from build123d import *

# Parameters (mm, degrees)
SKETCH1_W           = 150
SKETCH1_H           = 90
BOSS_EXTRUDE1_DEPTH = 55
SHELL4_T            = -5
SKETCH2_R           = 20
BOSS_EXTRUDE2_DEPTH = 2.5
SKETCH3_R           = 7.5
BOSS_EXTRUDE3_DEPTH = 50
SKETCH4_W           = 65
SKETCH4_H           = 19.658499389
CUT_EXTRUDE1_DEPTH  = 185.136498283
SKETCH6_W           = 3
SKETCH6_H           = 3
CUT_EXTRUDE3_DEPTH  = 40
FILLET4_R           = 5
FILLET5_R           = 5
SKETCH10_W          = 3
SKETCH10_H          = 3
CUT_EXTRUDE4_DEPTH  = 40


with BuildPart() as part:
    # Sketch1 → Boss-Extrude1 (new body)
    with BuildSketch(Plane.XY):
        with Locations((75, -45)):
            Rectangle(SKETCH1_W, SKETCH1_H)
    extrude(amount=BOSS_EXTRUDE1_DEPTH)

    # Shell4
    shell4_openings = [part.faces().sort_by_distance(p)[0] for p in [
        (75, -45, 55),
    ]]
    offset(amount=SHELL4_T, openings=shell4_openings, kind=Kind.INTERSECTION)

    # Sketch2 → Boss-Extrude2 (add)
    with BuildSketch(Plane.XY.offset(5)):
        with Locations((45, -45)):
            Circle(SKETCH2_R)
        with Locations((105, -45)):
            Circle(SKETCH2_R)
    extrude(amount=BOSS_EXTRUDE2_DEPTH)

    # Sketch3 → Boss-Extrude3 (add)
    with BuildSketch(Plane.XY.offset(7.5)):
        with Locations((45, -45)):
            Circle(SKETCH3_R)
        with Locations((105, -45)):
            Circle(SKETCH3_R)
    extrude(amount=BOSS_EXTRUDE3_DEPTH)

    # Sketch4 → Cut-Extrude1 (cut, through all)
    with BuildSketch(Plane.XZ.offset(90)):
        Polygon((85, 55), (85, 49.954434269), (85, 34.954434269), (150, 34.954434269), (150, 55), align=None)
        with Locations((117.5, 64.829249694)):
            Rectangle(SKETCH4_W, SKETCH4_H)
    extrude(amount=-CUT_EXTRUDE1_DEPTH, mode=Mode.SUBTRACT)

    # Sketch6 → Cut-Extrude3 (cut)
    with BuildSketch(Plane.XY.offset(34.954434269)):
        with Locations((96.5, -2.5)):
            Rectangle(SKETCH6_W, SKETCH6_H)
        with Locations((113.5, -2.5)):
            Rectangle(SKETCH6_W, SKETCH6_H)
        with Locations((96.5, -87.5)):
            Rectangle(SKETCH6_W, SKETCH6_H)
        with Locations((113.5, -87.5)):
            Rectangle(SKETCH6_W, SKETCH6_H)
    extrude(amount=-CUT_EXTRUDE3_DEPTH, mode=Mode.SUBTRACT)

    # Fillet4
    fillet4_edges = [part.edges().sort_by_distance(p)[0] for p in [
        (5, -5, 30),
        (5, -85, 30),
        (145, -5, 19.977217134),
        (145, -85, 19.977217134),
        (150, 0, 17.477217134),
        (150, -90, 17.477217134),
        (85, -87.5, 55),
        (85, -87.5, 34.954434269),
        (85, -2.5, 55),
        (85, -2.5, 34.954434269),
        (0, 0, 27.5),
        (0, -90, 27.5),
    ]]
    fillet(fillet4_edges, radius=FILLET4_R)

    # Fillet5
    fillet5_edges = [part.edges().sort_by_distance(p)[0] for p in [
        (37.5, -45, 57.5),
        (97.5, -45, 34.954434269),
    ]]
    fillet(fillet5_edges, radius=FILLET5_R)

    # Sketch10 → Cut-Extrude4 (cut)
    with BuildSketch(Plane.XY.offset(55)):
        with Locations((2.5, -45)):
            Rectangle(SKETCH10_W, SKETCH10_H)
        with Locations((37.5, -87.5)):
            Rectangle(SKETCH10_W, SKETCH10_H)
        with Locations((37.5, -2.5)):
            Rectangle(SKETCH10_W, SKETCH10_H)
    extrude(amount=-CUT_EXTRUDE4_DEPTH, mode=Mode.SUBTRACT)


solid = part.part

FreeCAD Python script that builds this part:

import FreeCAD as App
import Part
import Sketcher
from FreeCAD import Vector
Q = App.Units.Quantity


def edges_at(feature, points):
    """Names of the edges that pass closest to the given points."""
    edges = feature.Shape.Edges
    near = lambda p: min(range(len(edges)), key=lambda i: edges[i].distToShape(Part.Vertex(*p))[0])
    return sorted({f"Edge{near(p) + 1}" for p in points})


def faces_at(feature, points):
    """Names of the faces that lie closest to the given points."""
    faces = feature.Shape.Faces
    near = lambda p: min(range(len(faces)), key=lambda i: faces[i].distToShape(Part.Vertex(*p))[0])
    return sorted({f"Face{near(p) + 1}" for p in points})

doc = App.newDocument("Part")
body = doc.addObject("PartDesign::Body", "Body")

# Sketch on XY plane
sketch1 = doc.addObject("Sketcher::SketchObject", "Sketch")
body.addObject(sketch1)
sketch1.AttachmentSupport = (doc.XY_Plane, [""])
sketch1.MapMode = "FlatFace"
sketch1.addGeometry([
    Part.LineSegment(Vector(0, 0, 0), Vector(0, -90, 0)),
    Part.LineSegment(Vector(0, -90, 0), Vector(150, -90, 0)),
    Part.LineSegment(Vector(150, -90, 0), Vector(150, 0, 0)),
    Part.LineSegment(Vector(150, 0, 0), Vector(0, 0, 0)),
], False)
sketch1.addConstraint([
    Sketcher.Constraint("Coincident", 0, 2, 1, 1),
    Sketcher.Constraint("Coincident", 1, 2, 2, 1),
    Sketcher.Constraint("Coincident", 2, 2, 3, 1),
    Sketcher.Constraint("Coincident", 3, 2, 0, 1),
    Sketcher.Constraint("Vertical", 0),
    Sketcher.Constraint("Horizontal", 1),
    Sketcher.Constraint("Vertical", 2),
    Sketcher.Constraint("Horizontal", 3),
    Sketcher.Constraint("Coincident", 3, 2, -1, 1),
    Sketcher.Constraint("DistanceX", 1, 1, 1, 2, Q("150 mm")),
    Sketcher.Constraint("DistanceY", 0, 2, 0, 1, Q("90 mm")),
])
pad1 = doc.addObject("PartDesign::Pad", "Pad")
body.addObject(pad1)
pad1.Profile = sketch1
pad1.Length = 55
doc.recompute()

thickness = doc.addObject("PartDesign::Thickness", "Thickness")
body.addObject(thickness)
thickness.Base = (pad1, faces_at(pad1, [(75, -45, 55)]))
thickness.Value = 5
thickness.Reversed = True
thickness.Join = "Intersection"

# Sketch on XY plane
sketch2 = doc.addObject("Sketcher::SketchObject", "Sketch001")
body.addObject(sketch2)
sketch2.AttachmentSupport = (doc.XY_Plane, [""])
sketch2.MapMode = "FlatFace"
sketch2.AttachmentOffset = App.Placement(Vector(0, 0, 5), App.Rotation())
sketch2.addGeometry([
    Part.Circle(Vector(45, -45, 0), Vector(0, 0, 1), 20),
    Part.Circle(Vector(105, -45, 0), Vector(0, 0, 1), 20),
], False)
sketch2.addConstraint([
    Sketcher.Constraint("Equal", 0, 1),
    Sketcher.Constraint("Horizontal", 0, 3, 1, 3),
    Sketcher.Constraint("Diameter", 0, Q("40 mm")),
    Sketcher.Constraint("DistanceX", -1, 1, 0, 3, Q("45 mm")),
    Sketcher.Constraint("DistanceY", 0, 3, -1, 1, Q("45 mm")),
    Sketcher.Constraint("DistanceX", -1, 1, 1, 3, Q("105 mm")),
])
pad2 = doc.addObject("PartDesign::Pad", "Pad001")
body.addObject(pad2)
pad2.Profile = sketch2
pad2.Length = 2.5

# Sketch on XY plane
sketch3 = doc.addObject("Sketcher::SketchObject", "Sketch002")
body.addObject(sketch3)
sketch3.AttachmentSupport = (doc.XY_Plane, [""])
sketch3.MapMode = "FlatFace"
sketch3.AttachmentOffset = App.Placement(Vector(0, 0, 7.5), App.Rotation())
sketch3.addGeometry([
    Part.Circle(Vector(45, -45, 0), Vector(0, 0, 1), 7.5),
    Part.Circle(Vector(105, -45, 0), Vector(0, 0, 1), 7.5),
], False)
sketch3.addConstraint([
    Sketcher.Constraint("Equal", 0, 1),
    Sketcher.Constraint("Horizontal", 0, 3, 1, 3),
    Sketcher.Constraint("Diameter", 0, Q("15 mm")),
    Sketcher.Constraint("DistanceX", -1, 1, 0, 3, Q("45 mm")),
    Sketcher.Constraint("DistanceY", 0, 3, -1, 1, Q("45 mm")),
    Sketcher.Constraint("DistanceX", -1, 1, 1, 3, Q("105 mm")),
])
pad3 = doc.addObject("PartDesign::Pad", "Pad002")
body.addObject(pad3)
pad3.Profile = sketch3
pad3.Length = 50

# Sketch on XZ plane
sketch4 = doc.addObject("Sketcher::SketchObject", "Sketch003")
body.addObject(sketch4)
sketch4.AttachmentSupport = (doc.XZ_Plane, [""])
sketch4.MapMode = "FlatFace"
sketch4.AttachmentOffset = App.Placement(Vector(0, 0, 90), App.Rotation())
sketch4.addGeometry([
    Part.LineSegment(Vector(85, 34.954434, 0), Vector(150, 34.954434, 0)),
    Part.LineSegment(Vector(150, 34.954434, 0), Vector(150, 74.658499, 0)),
    Part.LineSegment(Vector(150, 74.658499, 0), Vector(85, 74.658499, 0)),
    Part.LineSegment(Vector(85, 74.658499, 0), Vector(85, 34.954434, 0)),
], False)
sketch4.addConstraint([
    Sketcher.Constraint("Coincident", 0, 2, 1, 1),
    Sketcher.Constraint("Coincident", 1, 2, 2, 1),
    Sketcher.Constraint("Coincident", 2, 2, 3, 1),
    Sketcher.Constraint("Coincident", 3, 2, 0, 1),
    Sketcher.Constraint("Horizontal", 0),
    Sketcher.Constraint("Vertical", 1),
    Sketcher.Constraint("Horizontal", 2),
    Sketcher.Constraint("Vertical", 3),
    Sketcher.Constraint("DistanceX", 0, 1, 0, 2, Q("65 mm")),
    Sketcher.Constraint("DistanceX", -1, 1, 0, 2, Q("150 mm")),
    Sketcher.Constraint("DistanceY", -1, 1, 1, 2, Q("74.658499 mm")),
    Sketcher.Constraint("DistanceY", 1, 1, 1, 2, Q("39.704065 mm")),
])
pocket1 = doc.addObject("PartDesign::Pocket", "Pocket")
body.addObject(pocket1)
pocket1.Profile = sketch4
pocket1.Type = "ThroughAll"

# Sketch on XY plane
sketch5 = doc.addObject("Sketcher::SketchObject", "Sketch004")
body.addObject(sketch5)
sketch5.AttachmentSupport = (doc.XY_Plane, [""])
sketch5.MapMode = "FlatFace"
sketch5.AttachmentOffset = App.Placement(Vector(0, 0, 34.954434), App.Rotation())
sketch5.addGeometry([
    Part.LineSegment(Vector(95, -1, 0), Vector(95, -4, 0)),  # 0
    Part.LineSegment(Vector(95, -4, 0), Vector(98, -4, 0)),  # 1
    Part.LineSegment(Vector(98, -4, 0), Vector(98, -1, 0)),  # 2
    Part.LineSegment(Vector(98, -1, 0), Vector(95, -1, 0)),  # 3
    Part.LineSegment(Vector(112, -1, 0), Vector(112, -4, 0)),  # 4
    Part.LineSegment(Vector(112, -4, 0), Vector(115, -4, 0)),  # 5
    Part.LineSegment(Vector(115, -4, 0), Vector(115, -1, 0)),  # 6
    Part.LineSegment(Vector(115, -1, 0), Vector(112, -1, 0)),  # 7
    Part.LineSegment(Vector(95, -86, 0), Vector(95, -89, 0)),  # 8
    Part.LineSegment(Vector(95, -89, 0), Vector(98, -89, 0)),  # 9
    Part.LineSegment(Vector(98, -89, 0), Vector(98, -86, 0)),  # 10
    Part.LineSegment(Vector(98, -86, 0), Vector(95, -86, 0)),  # 11
    Part.LineSegment(Vector(112, -86, 0), Vector(112, -89, 0)),  # 12
    Part.LineSegment(Vector(112, -89, 0), Vector(115, -89, 0)),  # 13
    Part.LineSegment(Vector(115, -89, 0), Vector(115, -86, 0)),  # 14
    Part.LineSegment(Vector(115, -86, 0), Vector(112, -86, 0)),  # 15
], False)
sketch5.addConstraint([
    Sketcher.Constraint("Coincident", 0, 2, 1, 1),
    Sketcher.Constraint("Coincident", 1, 2, 2, 1),
    Sketcher.Constraint("Coincident", 2, 2, 3, 1),
    Sketcher.Constraint("Coincident", 3, 2, 0, 1),
    Sketcher.Constraint("Coincident", 4, 2, 5, 1),
    Sketcher.Constraint("Coincident", 5, 2, 6, 1),
    Sketcher.Constraint("Coincident", 6, 2, 7, 1),
    Sketcher.Constraint("Coincident", 7, 2, 4, 1),
    Sketcher.Constraint("Coincident", 8, 2, 9, 1),
    Sketcher.Constraint("Coincident", 9, 2, 10, 1),
    Sketcher.Constraint("Coincident", 10, 2, 11, 1),
    Sketcher.Constraint("Coincident", 11, 2, 8, 1),
    Sketcher.Constraint("Coincident", 12, 2, 13, 1),
    Sketcher.Constraint("Coincident", 13, 2, 14, 1),
    Sketcher.Constraint("Coincident", 14, 2, 15, 1),
    Sketcher.Constraint("Coincident", 15, 2, 12, 1),
    Sketcher.Constraint("Vertical", 0),
    Sketcher.Constraint("Horizontal", 1),
    Sketcher.Constraint("Vertical", 2),
    Sketcher.Constraint("Horizontal", 3),
    Sketcher.Constraint("Vertical", 4),
    Sketcher.Constraint("Horizontal", 5),
    Sketcher.Constraint("Vertical", 6),
    Sketcher.Constraint("Horizontal", 7),
    Sketcher.Constraint("Vertical", 8),
    Sketcher.Constraint("Horizontal", 9),
    Sketcher.Constraint("Vertical", 10),
    Sketcher.Constraint("Horizontal", 11),
    Sketcher.Constraint("Vertical", 12),
    Sketcher.Constraint("Horizontal", 13),
    Sketcher.Constraint("Vertical", 14),
    Sketcher.Constraint("Horizontal", 15),
    Sketcher.Constraint("Horizontal", 1, 2, 4, 2),
    Sketcher.Constraint("Horizontal", 3, 2, 6, 2),
    Sketcher.Constraint("Horizontal", 9, 2, 12, 2),
    Sketcher.Constraint("Horizontal", 11, 2, 14, 2),
    Sketcher.Constraint("Vertical", 3, 2, 8, 2),
    Sketcher.Constraint("Vertical", 2, 2, 9, 2),
    Sketcher.Constraint("Vertical", 7, 2, 12, 2),
    Sketcher.Constraint("Vertical", 6, 2, 13, 2),
    Sketcher.Constraint("Equal", 3, 5),
    Sketcher.Constraint("Equal", 15, 0),
    Sketcher.Constraint("Equal", 6, 8),
    Sketcher.Constraint("DistanceX", 1, 1, 1, 2, Q("3 mm")),
    Sketcher.Constraint("DistanceX", -1, 1, 0, 2, Q("95 mm")),
    Sketcher.Constraint("DistanceY", 0, 2, -1, 1, Q("4 mm")),
    Sketcher.Constraint("DistanceX", -1, 1, 4, 2, Q("112 mm")),
    Sketcher.Constraint("DistanceY", 8, 2, -1, 1, Q("89 mm")),
])
pocket2 = doc.addObject("PartDesign::Pocket", "Pocket001")
body.addObject(pocket2)
pocket2.Profile = sketch5
pocket2.Length = 40
doc.recompute()

fillet = doc.addObject("PartDesign::Fillet", "Fillet")
body.addObject(fillet)
fillet.Base = (pocket2, edges_at(pocket2, [
    (5, -5, 30),
    (5, -85, 30),
    (145, -5, 19.977),
    (145, -85, 19.977),
    (150, 0, 17.477),
    (150, -90, 17.477),
    (85, -87.5, 55),
    (85, -87.5, 34.954),
    (85, -2.5, 55),
    (85, -2.5, 34.954),
    (0, 0, 27.5),
    (0, -90, 27.5),
]))
fillet.Radius = 5
doc.recompute()

fillet2 = doc.addObject("PartDesign::Fillet", "Fillet001")
body.addObject(fillet2)
fillet2.Base = (fillet, edges_at(fillet, [(37.5, -45, 57.5), (97.5, -45, 34.954)]))
fillet2.Radius = 5

# Sketch on XY plane
sketch6 = doc.addObject("Sketcher::SketchObject", "Sketch005")
body.addObject(sketch6)
sketch6.AttachmentSupport = (doc.XY_Plane, [""])
sketch6.MapMode = "FlatFace"
sketch6.AttachmentOffset = App.Placement(Vector(0, 0, 55), App.Rotation())
sketch6.addGeometry([
    Part.LineSegment(Vector(1, -43.5, 0), Vector(1, -46.5, 0)),  # 0
    Part.LineSegment(Vector(1, -46.5, 0), Vector(4, -46.5, 0)),  # 1
    Part.LineSegment(Vector(4, -46.5, 0), Vector(4, -43.5, 0)),  # 2
    Part.LineSegment(Vector(4, -43.5, 0), Vector(1, -43.5, 0)),  # 3
    Part.LineSegment(Vector(36, -86, 0), Vector(36, -89, 0)),  # 4
    Part.LineSegment(Vector(36, -89, 0), Vector(39, -89, 0)),  # 5
    Part.LineSegment(Vector(39, -89, 0), Vector(39, -86, 0)),  # 6
    Part.LineSegment(Vector(39, -86, 0), Vector(36, -86, 0)),  # 7
    Part.LineSegment(Vector(36, -1, 0), Vector(36, -4, 0)),  # 8
    Part.LineSegment(Vector(36, -4, 0), Vector(39, -4, 0)),  # 9
    Part.LineSegment(Vector(39, -4, 0), Vector(39, -1, 0)),  # 10
    Part.LineSegment(Vector(39, -1, 0), Vector(36, -1, 0)),  # 11
], False)
sketch6.addConstraint([
    Sketcher.Constraint("Coincident", 0, 2, 1, 1),
    Sketcher.Constraint("Coincident", 1, 2, 2, 1),
    Sketcher.Constraint("Coincident", 2, 2, 3, 1),
    Sketcher.Constraint("Coincident", 3, 2, 0, 1),
    Sketcher.Constraint("Coincident", 4, 2, 5, 1),
    Sketcher.Constraint("Coincident", 5, 2, 6, 1),
    Sketcher.Constraint("Coincident", 6, 2, 7, 1),
    Sketcher.Constraint("Coincident", 7, 2, 4, 1),
    Sketcher.Constraint("Coincident", 8, 2, 9, 1),
    Sketcher.Constraint("Coincident", 9, 2, 10, 1),
    Sketcher.Constraint("Coincident", 10, 2, 11, 1),
    Sketcher.Constraint("Coincident", 11, 2, 8, 1),
    Sketcher.Constraint("Vertical", 0),
    Sketcher.Constraint("Horizontal", 1),
    Sketcher.Constraint("Vertical", 2),
    Sketcher.Constraint("Horizontal", 3),
    Sketcher.Constraint("Vertical", 4),
    Sketcher.Constraint("Horizontal", 5),
    Sketcher.Constraint("Vertical", 6),
    Sketcher.Constraint("Horizontal", 7),
    Sketcher.Constraint("Vertical", 8),
    Sketcher.Constraint("Horizontal", 9),
    Sketcher.Constraint("Vertical", 10),
    Sketcher.Constraint("Horizontal", 11),
    Sketcher.Constraint("Vertical", 7, 2, 8, 2),
    Sketcher.Constraint("Vertical", 6, 2, 9, 2),
    Sketcher.Constraint("Equal", 3, 5),
    Sketcher.Constraint("Equal", 11, 0),
    Sketcher.Constraint("Equal", 2, 4),
    Sketcher.Constraint("Equal", 6, 8),
    Sketcher.Constraint("DistanceX", 1, 1, 1, 2, Q("3 mm")),
    Sketcher.Constraint("DistanceX", -1, 1, 0, 2, Q("1 mm")),
    Sketcher.Constraint("DistanceX", -1, 1, 4, 2, Q("36 mm")),
    Sketcher.Constraint("DistanceY", 4, 2, -1, 1, Q("89 mm")),
    Sketcher.Constraint("DistanceY", 8, 2, -1, 1, Q("4 mm")),
    Sketcher.Constraint("DistanceY", 0, 2, -1, 1, Q("46.5 mm")),
])
pocket3 = doc.addObject("PartDesign::Pocket", "Pocket002")
body.addObject(pocket3)
pocket3.Profile = sketch6
pocket3.Length = 40

doc.recompute()
